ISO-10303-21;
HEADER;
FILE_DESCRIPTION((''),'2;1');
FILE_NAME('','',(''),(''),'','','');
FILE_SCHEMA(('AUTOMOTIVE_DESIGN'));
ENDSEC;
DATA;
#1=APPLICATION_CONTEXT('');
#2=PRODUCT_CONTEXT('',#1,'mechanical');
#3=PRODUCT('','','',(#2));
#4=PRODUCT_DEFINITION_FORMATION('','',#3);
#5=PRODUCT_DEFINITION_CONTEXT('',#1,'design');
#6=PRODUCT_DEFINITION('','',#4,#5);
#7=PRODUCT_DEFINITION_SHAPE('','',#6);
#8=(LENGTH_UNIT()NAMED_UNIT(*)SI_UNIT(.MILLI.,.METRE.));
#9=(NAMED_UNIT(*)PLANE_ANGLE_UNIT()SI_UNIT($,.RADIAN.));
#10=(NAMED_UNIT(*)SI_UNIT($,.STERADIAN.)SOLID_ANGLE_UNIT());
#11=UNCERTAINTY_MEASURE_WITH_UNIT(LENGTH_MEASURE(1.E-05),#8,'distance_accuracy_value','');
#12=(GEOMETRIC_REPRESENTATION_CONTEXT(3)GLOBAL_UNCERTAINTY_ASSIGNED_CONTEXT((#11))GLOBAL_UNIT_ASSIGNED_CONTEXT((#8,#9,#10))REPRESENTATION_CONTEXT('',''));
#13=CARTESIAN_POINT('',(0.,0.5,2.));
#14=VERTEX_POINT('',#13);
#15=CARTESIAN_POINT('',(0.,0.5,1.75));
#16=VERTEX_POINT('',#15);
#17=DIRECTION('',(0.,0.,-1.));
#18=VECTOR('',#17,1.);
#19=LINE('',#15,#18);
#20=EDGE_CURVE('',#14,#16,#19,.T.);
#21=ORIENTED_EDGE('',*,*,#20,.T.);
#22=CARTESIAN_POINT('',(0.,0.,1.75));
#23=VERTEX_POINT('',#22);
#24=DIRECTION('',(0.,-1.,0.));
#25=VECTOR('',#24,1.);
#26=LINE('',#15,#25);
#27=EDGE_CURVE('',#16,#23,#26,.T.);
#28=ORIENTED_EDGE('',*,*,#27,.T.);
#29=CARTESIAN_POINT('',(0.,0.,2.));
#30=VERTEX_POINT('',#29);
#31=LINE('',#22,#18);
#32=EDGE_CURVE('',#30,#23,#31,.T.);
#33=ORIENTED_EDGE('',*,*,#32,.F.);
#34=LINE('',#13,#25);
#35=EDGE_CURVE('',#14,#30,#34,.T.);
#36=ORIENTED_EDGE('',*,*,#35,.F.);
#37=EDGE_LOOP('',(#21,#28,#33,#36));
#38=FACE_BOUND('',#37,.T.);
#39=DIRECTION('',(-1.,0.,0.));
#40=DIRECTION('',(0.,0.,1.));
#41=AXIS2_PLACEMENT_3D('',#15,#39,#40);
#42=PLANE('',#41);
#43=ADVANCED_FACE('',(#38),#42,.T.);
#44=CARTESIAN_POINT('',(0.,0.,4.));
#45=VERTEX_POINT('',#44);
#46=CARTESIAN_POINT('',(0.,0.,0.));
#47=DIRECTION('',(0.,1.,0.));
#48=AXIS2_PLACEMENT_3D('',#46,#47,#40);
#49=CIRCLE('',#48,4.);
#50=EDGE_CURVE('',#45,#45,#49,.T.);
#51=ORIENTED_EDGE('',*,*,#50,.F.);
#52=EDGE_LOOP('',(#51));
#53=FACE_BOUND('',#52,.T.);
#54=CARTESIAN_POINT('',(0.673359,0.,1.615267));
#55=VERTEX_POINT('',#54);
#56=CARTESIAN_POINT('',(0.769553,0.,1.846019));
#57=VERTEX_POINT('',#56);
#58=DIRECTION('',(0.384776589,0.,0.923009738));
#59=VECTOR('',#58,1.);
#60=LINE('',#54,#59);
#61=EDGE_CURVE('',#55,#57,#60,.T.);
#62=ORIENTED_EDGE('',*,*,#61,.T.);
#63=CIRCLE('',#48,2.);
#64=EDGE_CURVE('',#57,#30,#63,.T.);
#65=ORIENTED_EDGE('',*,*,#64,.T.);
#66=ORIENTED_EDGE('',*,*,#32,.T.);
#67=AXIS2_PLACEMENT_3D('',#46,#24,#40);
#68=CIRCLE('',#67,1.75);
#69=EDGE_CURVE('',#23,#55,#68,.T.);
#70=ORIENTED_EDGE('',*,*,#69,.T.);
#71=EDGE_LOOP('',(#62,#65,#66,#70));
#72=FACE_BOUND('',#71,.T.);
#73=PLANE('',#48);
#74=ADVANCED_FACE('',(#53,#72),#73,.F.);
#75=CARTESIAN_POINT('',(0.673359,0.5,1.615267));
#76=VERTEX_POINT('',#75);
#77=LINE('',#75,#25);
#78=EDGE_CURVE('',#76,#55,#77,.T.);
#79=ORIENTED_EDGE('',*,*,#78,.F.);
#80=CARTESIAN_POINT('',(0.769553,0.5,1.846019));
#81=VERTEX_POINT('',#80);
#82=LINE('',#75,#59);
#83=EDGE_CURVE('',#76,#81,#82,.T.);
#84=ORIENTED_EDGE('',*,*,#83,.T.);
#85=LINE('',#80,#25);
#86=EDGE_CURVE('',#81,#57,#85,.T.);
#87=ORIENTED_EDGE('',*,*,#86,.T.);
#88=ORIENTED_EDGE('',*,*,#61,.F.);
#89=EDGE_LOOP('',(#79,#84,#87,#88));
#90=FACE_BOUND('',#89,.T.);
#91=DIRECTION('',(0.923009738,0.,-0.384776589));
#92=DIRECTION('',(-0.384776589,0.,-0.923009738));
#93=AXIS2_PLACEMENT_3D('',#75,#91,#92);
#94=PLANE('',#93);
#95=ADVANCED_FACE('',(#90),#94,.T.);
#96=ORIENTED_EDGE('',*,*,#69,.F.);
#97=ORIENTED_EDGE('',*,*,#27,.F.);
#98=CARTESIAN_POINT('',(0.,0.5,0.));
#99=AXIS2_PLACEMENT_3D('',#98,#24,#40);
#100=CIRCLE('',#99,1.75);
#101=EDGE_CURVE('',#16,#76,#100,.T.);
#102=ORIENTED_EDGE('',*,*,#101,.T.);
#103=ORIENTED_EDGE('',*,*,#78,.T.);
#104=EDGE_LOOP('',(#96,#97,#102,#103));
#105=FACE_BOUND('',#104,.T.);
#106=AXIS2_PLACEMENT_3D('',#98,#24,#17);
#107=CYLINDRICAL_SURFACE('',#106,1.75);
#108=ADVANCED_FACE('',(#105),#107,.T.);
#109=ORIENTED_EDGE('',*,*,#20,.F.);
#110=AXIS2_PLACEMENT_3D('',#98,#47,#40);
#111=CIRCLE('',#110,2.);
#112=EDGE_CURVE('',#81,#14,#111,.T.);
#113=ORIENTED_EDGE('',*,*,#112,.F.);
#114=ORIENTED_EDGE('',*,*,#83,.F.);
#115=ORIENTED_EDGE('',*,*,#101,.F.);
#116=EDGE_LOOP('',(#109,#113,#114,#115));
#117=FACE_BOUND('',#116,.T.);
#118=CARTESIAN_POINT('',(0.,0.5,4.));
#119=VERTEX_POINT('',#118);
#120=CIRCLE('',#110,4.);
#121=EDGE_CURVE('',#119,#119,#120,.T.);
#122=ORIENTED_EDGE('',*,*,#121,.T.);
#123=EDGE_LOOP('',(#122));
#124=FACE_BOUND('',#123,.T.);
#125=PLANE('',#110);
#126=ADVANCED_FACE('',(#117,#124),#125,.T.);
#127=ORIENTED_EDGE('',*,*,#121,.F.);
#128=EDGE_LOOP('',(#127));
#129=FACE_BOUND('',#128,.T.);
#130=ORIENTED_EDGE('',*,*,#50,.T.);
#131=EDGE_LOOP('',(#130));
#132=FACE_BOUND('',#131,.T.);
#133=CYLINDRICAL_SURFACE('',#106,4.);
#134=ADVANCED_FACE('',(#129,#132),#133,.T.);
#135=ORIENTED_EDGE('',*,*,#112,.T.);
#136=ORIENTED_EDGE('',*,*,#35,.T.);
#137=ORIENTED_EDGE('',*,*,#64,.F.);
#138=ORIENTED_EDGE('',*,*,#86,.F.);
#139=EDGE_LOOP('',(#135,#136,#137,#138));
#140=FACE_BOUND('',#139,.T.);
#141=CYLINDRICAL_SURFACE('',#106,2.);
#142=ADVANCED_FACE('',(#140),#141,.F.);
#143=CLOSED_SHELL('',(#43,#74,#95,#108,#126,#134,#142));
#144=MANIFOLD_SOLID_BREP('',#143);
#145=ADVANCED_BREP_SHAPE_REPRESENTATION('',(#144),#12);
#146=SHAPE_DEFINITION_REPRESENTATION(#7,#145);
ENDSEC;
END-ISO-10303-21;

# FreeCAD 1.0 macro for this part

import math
import FreeCAD as App
import Part
import Sketcher
from FreeCAD import Vector
Q = App.Units.Quantity

doc = App.newDocument("Part")
body = doc.addObject("PartDesign::Body", "Body")

# Sketch on XZ plane
sketch1 = body.newObject("Sketcher::SketchObject", "Sketch")
sketch1.AttachmentSupport = (doc.getObject("XZ_Plane"), [""])
sketch1.MapMode = "FlatFace"
sketch1.addGeometry(Part.Circle(Vector(0, 0, 0), Vector(0, 0, 1), 4), False)
sketch1.addGeometry(Part.LineSegment(Vector(0.77, 1.85, 0), Vector(0.67, 1.62, 0)), False)
sketch1.addGeometry(Part.ArcOfCircle(Part.Circle(Vector(0, 0, 0), Vector(0, 0, 1), 1.75), math.radians(90), math.radians(427)), False)
sketch1.addGeometry(Part.LineSegment(Vector(0, 1.75, 0), Vector(0, 2, 0)), False)
sketch1.addGeometry(Part.ArcOfCircle(Part.Circle(Vector(0, 0, 0), Vector(0, 0, 1), 2), math.radians(90), math.radians(427)), False)
sketch1.addConstraint(Sketcher.Constraint("Coincident", 1, 2, 2, 2))
sketch1.addConstraint(Sketcher.Constraint("Coincident", 2, 1, 3, 1))
sketch1.addConstraint(Sketcher.Constraint("Coincident", 3, 2, 4, 1))
sketch1.addConstraint(Sketcher.Constraint("Coincident", 4, 2, 1, 1))
sketch1.addConstraint(Sketcher.Constraint("Vertical", 3))
sketch1.addConstraint(Sketcher.Constraint("Coincident", 0, 3, -1, 1))
sketch1.addConstraint(Sketcher.Constraint("Coincident", 2, 3, -1, 1))
sketch1.addConstraint(Sketcher.Constraint("Coincident", 4, 3, -1, 1))
sketch1.addConstraint(Sketcher.Constraint("PointOnObject", 2, 1, -2))
sketch1.addConstraint(Sketcher.Constraint("Diameter", 0, Q("8 mm")))
sketch1.addConstraint(Sketcher.Constraint("Radius", 4, Q("2 mm")))
sketch1.addConstraint(Sketcher.Constraint("Radius", 2, Q("1.75 mm")))
sketch1.addConstraint(Sketcher.Constraint("DistanceX", -1, 1, 1, 2, Q("0.673359 mm")))
sketch1.addConstraint(Sketcher.Constraint("DistanceY", -1, 1, 4, 2, Q("1.846019 mm")))
pad1 = body.newObject("PartDesign::Pad", "Pad")
pad1.Profile = sketch1
pad1.Length = 0.5
pad1.Reversed = True

doc.recompute()
